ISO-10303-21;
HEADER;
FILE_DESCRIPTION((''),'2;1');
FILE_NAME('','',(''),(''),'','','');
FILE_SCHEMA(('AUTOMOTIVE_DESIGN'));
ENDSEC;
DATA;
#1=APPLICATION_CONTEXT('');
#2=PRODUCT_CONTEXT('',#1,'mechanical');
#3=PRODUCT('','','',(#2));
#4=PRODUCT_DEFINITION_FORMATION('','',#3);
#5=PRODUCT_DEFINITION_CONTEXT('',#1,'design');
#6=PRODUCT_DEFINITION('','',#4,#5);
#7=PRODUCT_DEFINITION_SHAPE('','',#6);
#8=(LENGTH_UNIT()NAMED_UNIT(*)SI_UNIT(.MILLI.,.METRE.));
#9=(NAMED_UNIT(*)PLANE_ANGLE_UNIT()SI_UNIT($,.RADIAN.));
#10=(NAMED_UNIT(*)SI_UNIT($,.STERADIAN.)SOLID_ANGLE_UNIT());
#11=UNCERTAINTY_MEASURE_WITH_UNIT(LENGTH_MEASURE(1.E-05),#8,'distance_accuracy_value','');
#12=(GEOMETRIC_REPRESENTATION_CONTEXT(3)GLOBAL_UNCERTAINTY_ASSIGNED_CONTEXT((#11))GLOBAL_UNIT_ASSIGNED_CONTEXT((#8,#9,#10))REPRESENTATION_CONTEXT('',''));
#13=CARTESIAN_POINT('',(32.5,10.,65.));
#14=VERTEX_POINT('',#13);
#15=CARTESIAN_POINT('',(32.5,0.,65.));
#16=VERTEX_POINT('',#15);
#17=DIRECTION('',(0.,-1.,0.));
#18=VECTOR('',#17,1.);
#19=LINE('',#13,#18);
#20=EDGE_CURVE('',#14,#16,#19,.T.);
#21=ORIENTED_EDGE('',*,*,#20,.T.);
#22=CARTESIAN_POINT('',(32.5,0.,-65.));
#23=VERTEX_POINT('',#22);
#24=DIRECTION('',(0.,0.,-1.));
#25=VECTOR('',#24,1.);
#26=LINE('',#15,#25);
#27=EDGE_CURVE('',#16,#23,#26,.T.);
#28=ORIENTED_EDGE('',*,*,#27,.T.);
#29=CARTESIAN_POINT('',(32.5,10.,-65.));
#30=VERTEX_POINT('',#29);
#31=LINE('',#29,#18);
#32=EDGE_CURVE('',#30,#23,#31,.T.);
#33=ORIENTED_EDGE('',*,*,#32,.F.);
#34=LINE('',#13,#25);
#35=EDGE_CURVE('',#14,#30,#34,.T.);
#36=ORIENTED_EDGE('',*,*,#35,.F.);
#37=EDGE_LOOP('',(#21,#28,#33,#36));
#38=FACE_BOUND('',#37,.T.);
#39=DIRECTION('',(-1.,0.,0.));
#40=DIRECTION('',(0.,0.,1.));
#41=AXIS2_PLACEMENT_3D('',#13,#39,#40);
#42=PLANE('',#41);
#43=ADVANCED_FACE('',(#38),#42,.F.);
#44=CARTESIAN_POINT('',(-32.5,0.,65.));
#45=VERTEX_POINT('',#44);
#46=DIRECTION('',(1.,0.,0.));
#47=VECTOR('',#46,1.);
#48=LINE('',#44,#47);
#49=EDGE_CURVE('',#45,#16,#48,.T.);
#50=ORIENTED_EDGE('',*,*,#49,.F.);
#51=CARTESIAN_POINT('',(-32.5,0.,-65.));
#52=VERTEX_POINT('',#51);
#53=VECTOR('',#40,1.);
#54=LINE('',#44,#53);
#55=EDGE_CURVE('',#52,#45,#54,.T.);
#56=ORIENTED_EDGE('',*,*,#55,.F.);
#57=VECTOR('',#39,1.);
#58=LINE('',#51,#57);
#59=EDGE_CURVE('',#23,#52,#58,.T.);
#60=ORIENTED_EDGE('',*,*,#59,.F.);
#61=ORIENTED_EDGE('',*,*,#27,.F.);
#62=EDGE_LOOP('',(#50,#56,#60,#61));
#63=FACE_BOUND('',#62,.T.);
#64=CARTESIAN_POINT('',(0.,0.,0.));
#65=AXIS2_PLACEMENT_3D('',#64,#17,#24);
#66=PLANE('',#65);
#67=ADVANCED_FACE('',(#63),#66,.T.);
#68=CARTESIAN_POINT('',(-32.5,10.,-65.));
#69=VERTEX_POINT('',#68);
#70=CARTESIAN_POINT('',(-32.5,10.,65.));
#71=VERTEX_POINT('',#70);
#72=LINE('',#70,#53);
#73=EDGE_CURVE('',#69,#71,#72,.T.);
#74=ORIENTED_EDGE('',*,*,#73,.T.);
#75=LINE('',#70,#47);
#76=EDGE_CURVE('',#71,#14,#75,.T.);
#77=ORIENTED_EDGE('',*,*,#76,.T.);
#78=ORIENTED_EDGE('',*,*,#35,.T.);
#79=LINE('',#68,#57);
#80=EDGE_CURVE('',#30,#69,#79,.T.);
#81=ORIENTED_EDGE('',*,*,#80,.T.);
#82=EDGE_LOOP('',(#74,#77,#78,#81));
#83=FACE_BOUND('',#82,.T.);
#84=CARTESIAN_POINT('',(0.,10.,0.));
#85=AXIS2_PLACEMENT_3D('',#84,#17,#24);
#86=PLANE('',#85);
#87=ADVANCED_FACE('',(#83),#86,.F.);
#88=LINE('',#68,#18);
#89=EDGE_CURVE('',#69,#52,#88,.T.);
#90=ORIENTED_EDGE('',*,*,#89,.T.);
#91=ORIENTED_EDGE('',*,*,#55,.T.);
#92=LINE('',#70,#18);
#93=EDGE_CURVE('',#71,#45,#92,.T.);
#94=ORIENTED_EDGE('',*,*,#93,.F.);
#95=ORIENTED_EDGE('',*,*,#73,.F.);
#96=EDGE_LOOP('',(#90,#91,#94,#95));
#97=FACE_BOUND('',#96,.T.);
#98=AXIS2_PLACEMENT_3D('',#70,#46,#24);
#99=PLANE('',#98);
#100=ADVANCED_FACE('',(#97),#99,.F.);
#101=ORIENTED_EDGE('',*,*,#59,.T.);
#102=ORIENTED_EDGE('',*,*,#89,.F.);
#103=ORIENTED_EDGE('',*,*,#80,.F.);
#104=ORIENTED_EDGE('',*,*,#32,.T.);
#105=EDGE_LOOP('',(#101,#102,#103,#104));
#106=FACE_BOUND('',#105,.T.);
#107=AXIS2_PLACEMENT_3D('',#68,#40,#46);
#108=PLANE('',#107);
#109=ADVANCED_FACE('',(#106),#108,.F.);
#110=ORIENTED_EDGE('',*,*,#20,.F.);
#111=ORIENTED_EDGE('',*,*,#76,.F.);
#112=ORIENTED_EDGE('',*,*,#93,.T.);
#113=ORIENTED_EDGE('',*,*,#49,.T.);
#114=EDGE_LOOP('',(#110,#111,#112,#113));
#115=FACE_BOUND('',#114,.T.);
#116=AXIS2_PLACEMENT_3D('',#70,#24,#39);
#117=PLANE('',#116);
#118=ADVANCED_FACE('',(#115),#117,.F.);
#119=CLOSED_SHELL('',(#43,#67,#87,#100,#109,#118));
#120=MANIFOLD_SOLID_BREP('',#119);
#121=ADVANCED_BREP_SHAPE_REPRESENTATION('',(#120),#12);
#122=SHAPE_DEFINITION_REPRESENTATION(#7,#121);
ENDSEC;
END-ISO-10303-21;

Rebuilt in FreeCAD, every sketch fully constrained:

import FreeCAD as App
import Part
import Sketcher


def add_polygon(sketch, points):
    """Adds a closed chain of lines whose ends are joined by coincident constraints."""
    first, n = sketch.GeometryCount, len(points)
    for a, b in zip(points, points[1:] + points[:1]):
        sketch.addGeometry(Part.LineSegment(App.Vector(*a, 0), App.Vector(*b, 0)), False)
    for i in range(n):
        sketch.addConstraint(Sketcher.Constraint("Coincident", first + i, 2, first + (i + 1) % n, 1))

doc = App.newDocument("Part")
body = doc.addObject("PartDesign::Body", "Body")

# Sketch on XZ plane
sketch1 = body.newObject("Sketcher::SketchObject", "Sketch")
sketch1.AttachmentSupport = (doc.getObject("XZ_Plane"), [""])
sketch1.MapMode = "FlatFace"
add_polygon(sketch1, [(-32, -65), (-32, 65), (32, 65), (32, -65)])  # lines 0-3
sketch1.addConstraint(Sketcher.Constraint("Vertical", 0))
sketch1.addConstraint(Sketcher.Constraint("Horizontal", 1))
sketch1.addConstraint(Sketcher.Constraint("Vertical", 2))
sketch1.addConstraint(Sketcher.Constraint("Horizontal", 3))
sketch1.addConstraint(Sketcher.Constraint("Symmetric", 0, 2, 2, 2, -1, 1))
sketch1.addConstraint(Sketcher.Constraint("DistanceX", 1, 1, 1, 2, 65.0))
sketch1.addConstraint(Sketcher.Constraint("DistanceY", 0, 1, 0, 2, 130.0))
pad1 = body.newObject("PartDesign::Pad", "Pad")
pad1.Profile = sketch1
pad1.Length = 10
pad1.Reversed = True

doc.recompute()
